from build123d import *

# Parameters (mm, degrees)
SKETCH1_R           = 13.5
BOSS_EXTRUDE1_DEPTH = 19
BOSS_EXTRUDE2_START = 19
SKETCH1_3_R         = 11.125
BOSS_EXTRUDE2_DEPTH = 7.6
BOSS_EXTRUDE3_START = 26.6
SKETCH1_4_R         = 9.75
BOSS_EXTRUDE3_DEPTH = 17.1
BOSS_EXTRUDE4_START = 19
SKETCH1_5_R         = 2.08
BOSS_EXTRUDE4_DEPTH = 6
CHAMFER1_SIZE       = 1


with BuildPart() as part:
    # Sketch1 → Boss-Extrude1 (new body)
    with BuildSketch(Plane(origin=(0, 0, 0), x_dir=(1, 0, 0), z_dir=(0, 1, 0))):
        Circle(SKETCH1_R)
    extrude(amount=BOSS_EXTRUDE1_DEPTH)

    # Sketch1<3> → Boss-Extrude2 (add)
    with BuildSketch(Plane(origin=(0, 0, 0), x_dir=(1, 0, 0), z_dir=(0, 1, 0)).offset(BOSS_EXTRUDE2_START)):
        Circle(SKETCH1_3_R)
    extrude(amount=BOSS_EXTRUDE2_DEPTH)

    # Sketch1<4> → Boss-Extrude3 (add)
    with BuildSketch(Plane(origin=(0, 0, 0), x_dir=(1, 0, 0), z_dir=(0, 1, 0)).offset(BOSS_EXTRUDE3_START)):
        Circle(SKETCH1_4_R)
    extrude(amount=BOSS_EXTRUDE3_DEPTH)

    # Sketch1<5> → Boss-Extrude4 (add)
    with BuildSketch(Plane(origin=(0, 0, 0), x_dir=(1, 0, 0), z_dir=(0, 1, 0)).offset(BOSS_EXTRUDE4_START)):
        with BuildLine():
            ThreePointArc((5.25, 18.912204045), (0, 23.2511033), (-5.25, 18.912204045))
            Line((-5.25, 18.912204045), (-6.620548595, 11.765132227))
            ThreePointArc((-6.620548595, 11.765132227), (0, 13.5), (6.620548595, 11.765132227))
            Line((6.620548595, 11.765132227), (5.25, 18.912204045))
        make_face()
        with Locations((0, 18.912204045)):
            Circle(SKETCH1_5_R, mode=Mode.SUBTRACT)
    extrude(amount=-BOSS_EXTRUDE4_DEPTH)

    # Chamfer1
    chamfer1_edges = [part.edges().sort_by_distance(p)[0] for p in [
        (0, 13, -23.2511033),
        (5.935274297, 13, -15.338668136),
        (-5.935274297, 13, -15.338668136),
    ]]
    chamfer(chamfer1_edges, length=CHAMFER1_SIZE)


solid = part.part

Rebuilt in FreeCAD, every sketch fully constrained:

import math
import FreeCAD as App
import Part
import Sketcher

V = App.Vector
Q = App.Units.Quantity


def edges_at(feature, points):
    """Names of the edges that pass closest to the given points."""
    edges = feature.Shape.Edges
    near = lambda p: min(range(len(edges)), key=lambda i: edges[i].distToShape(Part.Vertex(*p))[0])
    return sorted({f"Edge{near(p) + 1}" for p in points})

doc = App.newDocument("Part")
body = doc.addObject("PartDesign::Body", "Body")

# Sketch on XZ plane
sketch1 = doc.addObject("Sketcher::SketchObject", "Sketch")
body.addObject(sketch1)
sketch1.AttachmentSupport = (doc.XZ_Plane, [""])
sketch1.MapMode = "FlatFace"
sketch1.addGeometry(Part.Circle(V(0, 0, 0), V(0, 0, 1), 13.5), False)
sketch1.addConstraint([
    Sketcher.Constraint("Coincident", 0, 3, -1, 1),
    Sketcher.Constraint("Diameter", 0, Q("27 mm")),
])
pad1 = doc.addObject("PartDesign::Pad", "Pad")
body.addObject(pad1)
pad1.Profile = sketch1
pad1.Length = 19
pad1.Reversed = True

# Sketch on XZ plane
sketch2 = doc.addObject("Sketcher::SketchObject", "Sketch001")
body.addObject(sketch2)
sketch2.AttachmentSupport = (doc.XZ_Plane, [""])
sketch2.MapMode = "FlatFace"
sketch2.AttachmentOffset = App.Placement(V(0, 0, -19), App.Rotation())
sketch2.addGeometry(Part.Circle(V(0, 0, 0), V(0, 0, 1), 11.125), False)
sketch2.addConstraint([
    Sketcher.Constraint("Coincident", 0, 3, -1, 1),
    Sketcher.Constraint("Diameter", 0, Q("22.25 mm")),
])
pad2 = doc.addObject("PartDesign::Pad", "Pad001")
body.addObject(pad2)
pad2.Profile = sketch2
pad2.Length = 7.6
pad2.Reversed = True

# Sketch on XZ plane
sketch3 = doc.addObject("Sketcher::SketchObject", "Sketch002")
body.addObject(sketch3)
sketch3.AttachmentSupport = (doc.XZ_Plane, [""])
sketch3.MapMode = "FlatFace"
sketch3.AttachmentOffset = App.Placement(V(0, 0, -26.6), App.Rotation())
sketch3.addGeometry(Part.Circle(V(0, 0, 0), V(0, 0, 1), 9.75), False)
sketch3.addConstraint([
    Sketcher.Constraint("Coincident", 0, 3, -1, 1),
    Sketcher.Constraint("Diameter", 0, Q("19.5 mm")),
])
pad3 = doc.addObject("PartDesign::Pad", "Pad002")
body.addObject(pad3)
pad3.Profile = sketch3
pad3.Length = 17.1
pad3.Reversed = True

# Sketch on XZ plane
sketch4 = doc.addObject("Sketcher::SketchObject", "Sketch003")
body.addObject(sketch4)
sketch4.AttachmentSupport = (doc.XZ_Plane, [""])
sketch4.MapMode = "FlatFace"
sketch4.AttachmentOffset = App.Placement(V(0, 0, -19), App.Rotation())
sketch4.addGeometry([
    Part.ArcOfCircle(Part.Circle(V(0, -17.905445, 0), V(0, 0, 1), 5.345658), math.radians(-169.144536), math.radians(-10.855464)),  # 0
    Part.LineSegment(V(-5.25, -18.912204, 0), V(-6.620549, -11.765132, 0)),  # 1
    Part.ArcOfCircle(Part.Circle(V(0, 0, 0), V(0, 0, 1), 13.5), math.radians(-119.367599), math.radians(-60.632401)),  # 2
    Part.LineSegment(V(6.620549, -11.765132, 0), V(5.25, -18.912204, 0)),  # 3
    Part.Circle(V(0, -18.912204, 0), V(0, 0, 1), 2.08),  # 4
], False)
sketch4.addConstraint([
    Sketcher.Constraint("Coincident", 0, 1, 1, 1),
    Sketcher.Constraint("Coincident", 1, 2, 2, 1),
    Sketcher.Constraint("Coincident", 2, 2, 3, 1),
    Sketcher.Constraint("Coincident", 3, 2, 0, 2),
    Sketcher.Constraint("Coincident", 2, 3, -1, 1),
    Sketcher.Constraint("PointOnObject", 0, 3, -2),
    Sketcher.Constraint("PointOnObject", 4, 3, -2),
    Sketcher.Constraint("Radius", 2, Q("13.5 mm")),
    Sketcher.Constraint("Diameter", 4, Q("4.16 mm")),
    Sketcher.Constraint("DistanceX", 0, 1, 3, 2, Q("10.5 mm")),
    Sketcher.Constraint("DistanceX", 0, 1, -1, 1, Q("5.25 mm")),
    Sketcher.Constraint("Radius", 0, Q("5.345658 mm")),
    Sketcher.Constraint("DistanceX", 1, 2, -1, 1, Q("6.620549 mm")),
    Sketcher.Constraint("DistanceX", -1, 1, 2, 2, Q("6.620549 mm")),
    Sketcher.Constraint("DistanceY", 4, 3, 0, 3, Q("1.006759 mm")),
    Sketcher.Constraint("DistanceY", 0, 1, 1, 2, Q("7.147072 mm")),
])
pad4 = doc.addObject("PartDesign::Pad", "Pad003")
body.addObject(pad4)
pad4.Profile = sketch4
pad4.Length = 6
doc.recompute()

chamfer = doc.addObject("PartDesign::Chamfer", "Chamfer")
body.addObject(chamfer)
chamfer.Base = (pad4, edges_at(pad4, [(0, 13, -23.251), (5.935, 13, -15.339), (-5.935, 13, -15.339)]))
chamfer.Size = 1

doc.recompute()
